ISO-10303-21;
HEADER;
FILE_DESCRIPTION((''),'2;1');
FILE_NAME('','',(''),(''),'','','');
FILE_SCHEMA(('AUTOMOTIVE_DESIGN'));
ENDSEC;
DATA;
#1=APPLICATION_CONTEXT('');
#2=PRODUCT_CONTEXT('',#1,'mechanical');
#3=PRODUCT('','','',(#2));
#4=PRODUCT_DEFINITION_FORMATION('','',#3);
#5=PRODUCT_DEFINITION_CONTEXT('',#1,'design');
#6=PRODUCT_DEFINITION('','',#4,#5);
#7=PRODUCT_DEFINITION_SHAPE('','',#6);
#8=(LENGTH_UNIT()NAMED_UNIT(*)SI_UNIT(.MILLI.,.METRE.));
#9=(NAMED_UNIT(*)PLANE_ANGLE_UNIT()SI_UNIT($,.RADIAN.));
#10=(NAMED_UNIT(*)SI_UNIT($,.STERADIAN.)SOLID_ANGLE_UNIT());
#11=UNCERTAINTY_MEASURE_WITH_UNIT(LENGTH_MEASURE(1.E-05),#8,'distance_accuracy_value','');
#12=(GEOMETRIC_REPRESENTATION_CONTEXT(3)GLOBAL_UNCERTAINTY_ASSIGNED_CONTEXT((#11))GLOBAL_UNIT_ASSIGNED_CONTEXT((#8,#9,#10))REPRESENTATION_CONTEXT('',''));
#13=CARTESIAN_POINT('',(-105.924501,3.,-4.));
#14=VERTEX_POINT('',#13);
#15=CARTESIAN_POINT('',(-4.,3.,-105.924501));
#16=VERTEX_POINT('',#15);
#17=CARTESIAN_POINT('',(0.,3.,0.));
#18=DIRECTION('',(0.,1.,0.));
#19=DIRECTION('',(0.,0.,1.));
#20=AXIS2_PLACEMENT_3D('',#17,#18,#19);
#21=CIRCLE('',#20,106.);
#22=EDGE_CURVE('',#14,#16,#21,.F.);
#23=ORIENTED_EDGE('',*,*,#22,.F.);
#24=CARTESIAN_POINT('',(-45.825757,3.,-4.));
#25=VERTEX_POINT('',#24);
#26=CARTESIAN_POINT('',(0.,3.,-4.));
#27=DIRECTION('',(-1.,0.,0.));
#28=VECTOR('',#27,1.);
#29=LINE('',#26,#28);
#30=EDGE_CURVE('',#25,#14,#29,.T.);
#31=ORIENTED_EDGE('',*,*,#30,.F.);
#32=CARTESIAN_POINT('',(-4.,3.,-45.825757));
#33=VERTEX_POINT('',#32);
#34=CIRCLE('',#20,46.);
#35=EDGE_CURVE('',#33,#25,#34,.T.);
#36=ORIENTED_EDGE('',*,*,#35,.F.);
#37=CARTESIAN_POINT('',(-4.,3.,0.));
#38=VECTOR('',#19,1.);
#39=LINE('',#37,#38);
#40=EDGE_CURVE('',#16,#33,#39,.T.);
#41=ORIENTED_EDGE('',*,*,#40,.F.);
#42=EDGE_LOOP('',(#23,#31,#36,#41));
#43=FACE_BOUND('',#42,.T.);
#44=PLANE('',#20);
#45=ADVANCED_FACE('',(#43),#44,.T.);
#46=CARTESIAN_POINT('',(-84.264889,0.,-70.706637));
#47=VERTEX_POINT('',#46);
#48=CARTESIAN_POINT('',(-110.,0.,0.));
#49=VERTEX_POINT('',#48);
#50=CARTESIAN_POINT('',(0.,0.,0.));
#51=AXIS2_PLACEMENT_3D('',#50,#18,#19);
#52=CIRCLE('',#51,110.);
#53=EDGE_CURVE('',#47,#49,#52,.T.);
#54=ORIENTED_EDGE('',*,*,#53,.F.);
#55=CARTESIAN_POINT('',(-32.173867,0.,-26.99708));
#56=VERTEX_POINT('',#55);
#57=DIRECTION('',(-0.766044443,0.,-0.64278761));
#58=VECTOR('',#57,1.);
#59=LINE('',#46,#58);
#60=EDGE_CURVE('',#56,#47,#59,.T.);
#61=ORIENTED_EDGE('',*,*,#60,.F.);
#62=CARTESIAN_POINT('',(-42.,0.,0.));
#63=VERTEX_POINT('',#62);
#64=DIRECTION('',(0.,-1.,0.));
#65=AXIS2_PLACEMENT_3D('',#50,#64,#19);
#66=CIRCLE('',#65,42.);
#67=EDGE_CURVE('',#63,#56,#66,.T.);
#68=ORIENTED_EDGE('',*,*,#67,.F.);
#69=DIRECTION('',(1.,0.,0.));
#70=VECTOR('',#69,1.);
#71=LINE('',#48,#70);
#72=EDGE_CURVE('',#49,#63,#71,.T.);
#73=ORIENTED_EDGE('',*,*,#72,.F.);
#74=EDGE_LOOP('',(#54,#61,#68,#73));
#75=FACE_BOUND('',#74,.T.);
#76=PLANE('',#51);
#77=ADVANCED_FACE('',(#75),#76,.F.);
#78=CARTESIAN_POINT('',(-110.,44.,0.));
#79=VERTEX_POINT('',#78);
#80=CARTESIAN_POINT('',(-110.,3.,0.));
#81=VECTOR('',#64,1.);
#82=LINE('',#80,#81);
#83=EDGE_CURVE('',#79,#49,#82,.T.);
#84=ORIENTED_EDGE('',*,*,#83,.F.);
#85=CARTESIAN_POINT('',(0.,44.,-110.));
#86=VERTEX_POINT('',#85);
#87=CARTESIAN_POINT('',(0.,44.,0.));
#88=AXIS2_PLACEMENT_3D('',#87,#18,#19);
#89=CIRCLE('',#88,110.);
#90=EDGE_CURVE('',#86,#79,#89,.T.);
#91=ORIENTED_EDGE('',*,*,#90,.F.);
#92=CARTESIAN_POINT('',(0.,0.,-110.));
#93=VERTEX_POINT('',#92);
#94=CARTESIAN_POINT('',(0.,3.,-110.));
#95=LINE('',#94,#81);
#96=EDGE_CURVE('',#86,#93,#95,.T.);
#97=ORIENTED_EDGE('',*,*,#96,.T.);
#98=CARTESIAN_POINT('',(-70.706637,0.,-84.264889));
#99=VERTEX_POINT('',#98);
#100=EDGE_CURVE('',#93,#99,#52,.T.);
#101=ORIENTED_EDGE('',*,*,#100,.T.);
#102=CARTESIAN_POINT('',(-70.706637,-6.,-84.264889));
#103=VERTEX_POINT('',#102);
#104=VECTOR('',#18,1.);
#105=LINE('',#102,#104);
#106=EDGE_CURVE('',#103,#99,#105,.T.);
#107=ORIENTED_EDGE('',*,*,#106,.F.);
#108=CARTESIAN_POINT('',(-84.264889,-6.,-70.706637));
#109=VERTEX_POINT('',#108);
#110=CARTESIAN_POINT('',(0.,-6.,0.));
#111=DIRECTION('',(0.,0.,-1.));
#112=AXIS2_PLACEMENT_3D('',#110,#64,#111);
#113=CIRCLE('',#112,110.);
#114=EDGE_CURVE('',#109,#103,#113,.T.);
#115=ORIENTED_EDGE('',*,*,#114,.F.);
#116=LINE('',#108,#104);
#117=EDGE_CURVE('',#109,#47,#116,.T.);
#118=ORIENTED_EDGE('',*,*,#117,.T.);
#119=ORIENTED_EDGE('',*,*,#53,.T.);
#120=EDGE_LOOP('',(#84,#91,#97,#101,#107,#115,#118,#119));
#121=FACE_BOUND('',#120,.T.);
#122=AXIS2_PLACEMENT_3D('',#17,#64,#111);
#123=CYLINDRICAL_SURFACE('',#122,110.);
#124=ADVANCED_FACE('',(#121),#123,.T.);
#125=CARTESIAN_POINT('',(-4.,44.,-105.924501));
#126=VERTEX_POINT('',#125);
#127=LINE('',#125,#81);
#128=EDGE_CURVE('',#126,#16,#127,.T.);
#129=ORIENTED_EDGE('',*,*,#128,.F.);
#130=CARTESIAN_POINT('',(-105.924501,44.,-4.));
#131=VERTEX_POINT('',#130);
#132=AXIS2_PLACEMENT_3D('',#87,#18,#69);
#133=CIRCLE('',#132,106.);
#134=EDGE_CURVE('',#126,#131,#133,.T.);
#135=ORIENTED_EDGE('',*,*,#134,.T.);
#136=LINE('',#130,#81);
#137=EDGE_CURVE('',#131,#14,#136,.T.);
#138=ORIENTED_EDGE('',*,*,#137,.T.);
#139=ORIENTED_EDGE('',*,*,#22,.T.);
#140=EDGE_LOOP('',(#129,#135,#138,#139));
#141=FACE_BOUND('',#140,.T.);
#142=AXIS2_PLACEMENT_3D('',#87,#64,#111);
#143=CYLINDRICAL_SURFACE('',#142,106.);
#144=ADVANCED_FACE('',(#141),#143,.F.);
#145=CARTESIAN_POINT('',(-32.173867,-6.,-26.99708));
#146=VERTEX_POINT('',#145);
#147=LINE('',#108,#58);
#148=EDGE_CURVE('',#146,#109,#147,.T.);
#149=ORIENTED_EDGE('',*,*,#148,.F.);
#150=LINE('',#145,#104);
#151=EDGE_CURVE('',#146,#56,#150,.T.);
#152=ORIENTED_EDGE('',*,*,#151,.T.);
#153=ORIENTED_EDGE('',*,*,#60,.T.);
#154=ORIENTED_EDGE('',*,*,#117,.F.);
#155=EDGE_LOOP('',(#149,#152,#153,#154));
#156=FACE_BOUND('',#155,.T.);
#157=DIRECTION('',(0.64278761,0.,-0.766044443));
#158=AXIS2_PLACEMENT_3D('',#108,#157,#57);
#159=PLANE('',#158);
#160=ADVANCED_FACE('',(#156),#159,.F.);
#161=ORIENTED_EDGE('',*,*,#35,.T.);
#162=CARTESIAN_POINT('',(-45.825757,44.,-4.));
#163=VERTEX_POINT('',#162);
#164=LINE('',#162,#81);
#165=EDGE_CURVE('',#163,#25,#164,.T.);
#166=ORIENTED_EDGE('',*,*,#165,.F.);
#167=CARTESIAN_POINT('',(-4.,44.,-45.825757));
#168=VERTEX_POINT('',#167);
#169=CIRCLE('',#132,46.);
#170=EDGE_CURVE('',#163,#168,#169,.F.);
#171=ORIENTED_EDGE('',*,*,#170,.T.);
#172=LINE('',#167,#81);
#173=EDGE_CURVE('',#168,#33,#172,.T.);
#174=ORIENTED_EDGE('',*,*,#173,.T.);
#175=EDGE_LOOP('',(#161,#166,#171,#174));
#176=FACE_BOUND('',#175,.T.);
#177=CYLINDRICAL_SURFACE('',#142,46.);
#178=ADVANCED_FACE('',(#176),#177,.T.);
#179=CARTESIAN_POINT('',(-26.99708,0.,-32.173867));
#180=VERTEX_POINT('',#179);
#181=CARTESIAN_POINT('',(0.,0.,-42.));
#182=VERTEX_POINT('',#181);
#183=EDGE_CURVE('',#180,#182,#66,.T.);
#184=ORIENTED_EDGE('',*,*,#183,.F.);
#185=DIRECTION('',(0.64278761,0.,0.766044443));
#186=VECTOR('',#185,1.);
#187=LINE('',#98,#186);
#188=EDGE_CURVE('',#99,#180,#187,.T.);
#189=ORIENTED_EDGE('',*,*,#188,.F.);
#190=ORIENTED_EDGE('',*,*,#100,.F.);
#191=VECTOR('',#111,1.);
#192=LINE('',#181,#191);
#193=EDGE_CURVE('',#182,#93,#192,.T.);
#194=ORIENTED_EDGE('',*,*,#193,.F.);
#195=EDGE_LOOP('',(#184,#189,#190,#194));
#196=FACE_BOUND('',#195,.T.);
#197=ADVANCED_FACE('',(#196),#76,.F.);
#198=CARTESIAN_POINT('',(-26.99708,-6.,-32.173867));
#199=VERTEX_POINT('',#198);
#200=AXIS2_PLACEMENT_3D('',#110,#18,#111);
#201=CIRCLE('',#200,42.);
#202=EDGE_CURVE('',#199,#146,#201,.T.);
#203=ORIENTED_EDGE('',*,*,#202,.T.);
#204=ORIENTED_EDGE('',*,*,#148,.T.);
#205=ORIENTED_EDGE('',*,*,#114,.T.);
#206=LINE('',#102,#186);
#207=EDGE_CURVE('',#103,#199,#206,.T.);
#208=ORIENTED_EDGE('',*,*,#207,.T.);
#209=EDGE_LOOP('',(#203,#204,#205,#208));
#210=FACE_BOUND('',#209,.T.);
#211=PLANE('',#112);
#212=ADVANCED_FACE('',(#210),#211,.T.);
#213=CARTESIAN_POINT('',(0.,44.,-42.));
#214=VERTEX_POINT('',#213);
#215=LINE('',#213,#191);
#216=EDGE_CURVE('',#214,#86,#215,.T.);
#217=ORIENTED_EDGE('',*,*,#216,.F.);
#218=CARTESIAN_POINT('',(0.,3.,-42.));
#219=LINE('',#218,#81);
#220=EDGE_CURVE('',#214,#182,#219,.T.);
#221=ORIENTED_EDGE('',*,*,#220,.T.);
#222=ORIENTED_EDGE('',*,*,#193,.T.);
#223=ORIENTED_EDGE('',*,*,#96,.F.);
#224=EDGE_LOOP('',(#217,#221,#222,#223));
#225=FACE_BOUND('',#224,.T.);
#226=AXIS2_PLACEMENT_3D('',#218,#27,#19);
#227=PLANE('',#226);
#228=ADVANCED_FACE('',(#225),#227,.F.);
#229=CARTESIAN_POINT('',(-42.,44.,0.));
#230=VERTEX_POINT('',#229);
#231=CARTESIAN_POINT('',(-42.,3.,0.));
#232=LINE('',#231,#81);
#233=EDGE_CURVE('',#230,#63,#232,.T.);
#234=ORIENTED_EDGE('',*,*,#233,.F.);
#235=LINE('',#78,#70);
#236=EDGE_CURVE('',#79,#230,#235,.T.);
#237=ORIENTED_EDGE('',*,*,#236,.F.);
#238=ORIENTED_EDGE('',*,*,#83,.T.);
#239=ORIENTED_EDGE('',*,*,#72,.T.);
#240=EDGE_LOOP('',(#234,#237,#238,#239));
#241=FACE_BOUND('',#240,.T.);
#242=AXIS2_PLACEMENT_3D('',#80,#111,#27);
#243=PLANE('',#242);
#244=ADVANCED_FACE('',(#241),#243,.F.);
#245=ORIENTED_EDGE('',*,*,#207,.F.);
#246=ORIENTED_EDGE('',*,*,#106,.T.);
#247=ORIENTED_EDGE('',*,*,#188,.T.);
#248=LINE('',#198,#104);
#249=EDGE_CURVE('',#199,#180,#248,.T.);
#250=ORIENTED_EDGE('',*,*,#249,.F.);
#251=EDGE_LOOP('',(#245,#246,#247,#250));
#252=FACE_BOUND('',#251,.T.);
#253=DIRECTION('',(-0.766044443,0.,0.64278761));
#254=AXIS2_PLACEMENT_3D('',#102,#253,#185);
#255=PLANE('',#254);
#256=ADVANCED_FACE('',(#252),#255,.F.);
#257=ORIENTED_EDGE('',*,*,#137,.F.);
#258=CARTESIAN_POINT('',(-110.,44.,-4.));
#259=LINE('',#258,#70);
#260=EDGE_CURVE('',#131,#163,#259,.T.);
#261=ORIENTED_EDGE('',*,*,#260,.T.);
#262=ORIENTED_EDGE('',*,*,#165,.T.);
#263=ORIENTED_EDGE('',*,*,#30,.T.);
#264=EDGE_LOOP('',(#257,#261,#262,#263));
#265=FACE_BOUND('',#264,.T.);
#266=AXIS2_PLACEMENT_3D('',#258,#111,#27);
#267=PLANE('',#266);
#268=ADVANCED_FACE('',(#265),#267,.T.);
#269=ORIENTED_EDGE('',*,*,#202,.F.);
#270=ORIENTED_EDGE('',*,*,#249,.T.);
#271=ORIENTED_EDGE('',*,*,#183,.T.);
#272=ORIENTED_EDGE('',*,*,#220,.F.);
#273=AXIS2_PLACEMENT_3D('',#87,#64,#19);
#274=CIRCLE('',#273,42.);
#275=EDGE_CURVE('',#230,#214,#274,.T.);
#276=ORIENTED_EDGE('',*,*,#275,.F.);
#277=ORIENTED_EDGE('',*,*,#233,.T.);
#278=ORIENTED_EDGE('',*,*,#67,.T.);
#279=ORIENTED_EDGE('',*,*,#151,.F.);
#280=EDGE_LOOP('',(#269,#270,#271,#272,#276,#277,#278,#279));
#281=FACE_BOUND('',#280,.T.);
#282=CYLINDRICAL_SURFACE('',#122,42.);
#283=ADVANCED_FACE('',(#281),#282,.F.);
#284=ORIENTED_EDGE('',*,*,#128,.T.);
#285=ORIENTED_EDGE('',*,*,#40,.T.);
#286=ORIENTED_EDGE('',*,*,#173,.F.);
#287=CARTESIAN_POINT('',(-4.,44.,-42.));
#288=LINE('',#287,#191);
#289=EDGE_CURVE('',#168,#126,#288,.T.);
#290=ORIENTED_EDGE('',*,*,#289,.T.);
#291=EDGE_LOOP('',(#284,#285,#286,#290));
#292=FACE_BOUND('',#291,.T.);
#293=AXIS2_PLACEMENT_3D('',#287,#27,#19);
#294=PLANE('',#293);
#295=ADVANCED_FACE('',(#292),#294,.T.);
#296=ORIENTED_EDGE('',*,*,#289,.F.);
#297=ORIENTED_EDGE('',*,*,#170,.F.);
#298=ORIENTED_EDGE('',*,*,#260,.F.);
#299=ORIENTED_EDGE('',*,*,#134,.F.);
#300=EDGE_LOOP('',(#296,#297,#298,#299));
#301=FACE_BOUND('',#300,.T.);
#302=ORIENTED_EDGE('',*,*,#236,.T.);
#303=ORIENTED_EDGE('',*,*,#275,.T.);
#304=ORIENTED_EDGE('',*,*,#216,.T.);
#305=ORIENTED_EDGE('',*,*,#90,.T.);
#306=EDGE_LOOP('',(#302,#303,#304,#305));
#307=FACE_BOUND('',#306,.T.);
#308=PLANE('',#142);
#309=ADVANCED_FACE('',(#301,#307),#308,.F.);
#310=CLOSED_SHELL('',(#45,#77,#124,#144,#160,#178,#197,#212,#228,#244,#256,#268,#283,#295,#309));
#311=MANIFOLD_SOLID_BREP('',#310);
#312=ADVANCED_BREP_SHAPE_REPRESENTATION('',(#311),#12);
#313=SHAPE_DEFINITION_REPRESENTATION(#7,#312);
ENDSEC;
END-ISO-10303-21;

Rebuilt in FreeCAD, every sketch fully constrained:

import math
import FreeCAD as App
import Part
import Sketcher

V = App.Vector
Q = App.Units.Quantity

doc = App.newDocument("Part")
body = doc.addObject("PartDesign::Body", "Body")

sketch1 = body.newObject("Sketcher::SketchObject", "Sketch")
sketch1.AttachmentSupport = (doc.getObject("XZ_Plane"), [""])
sketch1.MapMode = "FlatFace"
sketch1.addGeometry([
    Part.LineSegment(V(-110, 0, 0), V(-42, 0, 0)),
    Part.ArcOfCircle(Part.Circle(V(0, 0, 0), V(0, 0, 1), 42), math.radians(180), math.radians(270)),
    Part.LineSegment(V(0, -42, 0), V(0, -110, 0)),
    Part.ArcOfCircle(Part.Circle(V(0, 0, 0), V(0, 0, 1), 110), math.radians(180), math.radians(270)),
], False)
sketch1.addConstraint([
    Sketcher.Constraint("Coincident", 0, 2, 1, 1),
    Sketcher.Constraint("Coincident", 1, 2, 2, 1),
    Sketcher.Constraint("Coincident", 2, 2, 3, 2),
    Sketcher.Constraint("Coincident", 3, 1, 0, 1),
    Sketcher.Constraint("Horizontal", 0),
    Sketcher.Constraint("Vertical", 2),
    Sketcher.Constraint("Coincident", 1, 3, -1, 1),
    Sketcher.Constraint("Coincident", 3, 3, -1, 1),
    Sketcher.Constraint("PointOnObject", 0, 2, -1),
    Sketcher.Constraint("PointOnObject", 1, 2, -2),
    Sketcher.Constraint("Radius", 1, 42.0),
    Sketcher.Constraint("Radius", 3, 110.0),
])
pad1 = body.newObject("PartDesign::Pad", "Pad")
pad1.Profile = sketch1
pad1.Length = 3
pad1.Reversed = True

sketch2 = body.newObject("Sketcher::SketchObject", "Sketch001")
sketch2.AttachmentSupport = (doc.getObject("XZ_Plane"), [""])
sketch2.MapMode = "FlatFace"
sketch2.addGeometry([
    Part.LineSegment(V(0, -42, 0), V(0, -110, 0)),
    Part.ArcOfCircle(Part.Circle(V(0, 0, 0), V(0, 0, 1), 110), math.radians(180), math.radians(270)),
    Part.LineSegment(V(-110, 0, 0), V(-42, 0, 0)),
    Part.ArcOfCircle(Part.Circle(V(0, 0, 0), V(0, 0, 1), 42), math.radians(180), math.radians(270)),
    Part.LineSegment(V(-4, -106, 0), V(-4, -46, 0)),
    Part.ArcOfCircle(Part.Circle(V(0, 0, 0), V(0, 0, 1), 46), math.radians(-175), math.radians(-95)),
    Part.LineSegment(V(-46, -4, 0), V(-106, -4, 0)),
    Part.ArcOfCircle(Part.Circle(V(0, 0, 0), V(0, 0, 1), 106), math.radians(-178), math.radians(-92)),
], False)
sketch2.addConstraint([
    Sketcher.Constraint("Coincident", 0, 2, 1, 2),
    Sketcher.Constraint("Coincident", 1, 1, 2, 1),
    Sketcher.Constraint("Coincident", 2, 2, 3, 1),
    Sketcher.Constraint("Coincident", 3, 2, 0, 1),
    Sketcher.Constraint("Coincident", 4, 2, 5, 2),
    Sketcher.Constraint("Coincident", 5, 1, 6, 1),
    Sketcher.Constraint("Coincident", 6, 2, 7, 1),
    Sketcher.Constraint("Coincident", 7, 2, 4, 1),
    Sketcher.Constraint("Vertical", 0),
    Sketcher.Constraint("Horizontal", 2),
    Sketcher.Constraint("Vertical", 4),
    Sketcher.Constraint("Horizontal", 6),
    Sketcher.Constraint("Coincident", 1, 3, -1, 1),
    Sketcher.Constraint("Coincident", 3, 3, -1, 1),
    Sketcher.Constraint("Coincident", 5, 3, -1, 1),
    Sketcher.Constraint("Coincident", 7, 3, -1, 1),
    Sketcher.Constraint("PointOnObject", 0, 2, -2),
    Sketcher.Constraint("PointOnObject", 1, 1, -1),
    Sketcher.Constraint("Equal", 6, 4),
    Sketcher.Constraint("Radius", 1, 110.0),
    Sketcher.Constraint("Radius", 3, 42.0),
    Sketcher.Constraint("Radius", 5, 46.0),
    Sketcher.Constraint("Radius", 7, 106.0),
    Sketcher.Constraint("DistanceX", 4, 2, -1, 1, 4.0),
])
pad2 = body.newObject("PartDesign::Pad", "Pad001")
pad2.Profile = sketch2
pad2.Length = 44
pad2.Reversed = True

sketch3 = body.newObject("Sketcher::SketchObject", "Sketch002")
sketch3.AttachmentSupport = (doc.getObject("XZ_Plane"), [""])
sketch3.MapMode = "FlatFace"
sketch3.AttachmentOffset = App.Placement(V(0, 0, 6), App.Rotation())
sketch3.addGeometry([
    Part.LineSegment(V(-32, -27, 0), V(-84, -71, 0)),
    Part.ArcOfCircle(Part.Circle(V(0, 0, 0), V(0, 0, 1), 110), math.radians(-140), math.radians(-130)),
    Part.LineSegment(V(-71, -84, 0), V(-27, -32, 0)),
    Part.ArcOfCircle(Part.Circle(V(0, 0, 0), V(0, 0, 1), 42), math.radians(-140), math.radians(-130)),
], False)
sketch3.addConstraint([
    Sketcher.Constraint("Coincident", 0, 2, 1, 1),
    Sketcher.Constraint("Coincident", 1, 2, 2, 1),
    Sketcher.Constraint("Coincident", 2, 2, 3, 2),
    Sketcher.Constraint("Coincident", 3, 1, 0, 1),
    Sketcher.Constraint("Coincident", 1, 3, -1, 1),
    Sketcher.Constraint("Coincident", 3, 3, -1, 1),
    Sketcher.Constraint("Radius", 1, 110.0),
    Sketcher.Constraint("Radius", 3, 42.0),
    Sketcher.Constraint("Angle", 0, Q("-140 deg")),
    Sketcher.Constraint("Angle", 2, Q("50 deg")),
    Sketcher.Constraint("DistanceX", 0, 2, -1, 1, 84.264889),
    Sketcher.Constraint("DistanceY", 1, 2, -1, 1, 84.264889),
])
pad3 = body.newObject("PartDesign::Pad", "Pad002")
pad3.Profile = sketch3
pad3.Length = 6
pad3.Reversed = True

doc.recompute()
